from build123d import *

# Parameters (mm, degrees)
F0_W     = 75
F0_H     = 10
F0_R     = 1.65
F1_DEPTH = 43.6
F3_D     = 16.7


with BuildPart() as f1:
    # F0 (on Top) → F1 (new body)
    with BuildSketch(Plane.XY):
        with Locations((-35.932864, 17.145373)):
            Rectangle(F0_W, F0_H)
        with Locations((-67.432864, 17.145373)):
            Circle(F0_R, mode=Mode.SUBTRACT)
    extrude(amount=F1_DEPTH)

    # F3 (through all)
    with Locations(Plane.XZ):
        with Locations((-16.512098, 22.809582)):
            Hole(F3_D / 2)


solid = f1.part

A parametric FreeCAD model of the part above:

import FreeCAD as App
import Part
import Sketcher

doc = App.newDocument("Part")
body = doc.addObject("PartDesign::Body", "Body")

# Sketch on XY plane
sketch1 = body.newObject("Sketcher::SketchObject", "Sketch")
sketch1.AttachmentSupport = (doc.getObject("XY_Plane"), [""])
sketch1.MapMode = "FlatFace"
sketch1.addGeometry(Part.LineSegment(App.Vector(-73.432864, 22.145373, 0), App.Vector(-73.432864, 12.145373, 0)), False)
sketch1.addGeometry(Part.LineSegment(App.Vector(-73.432864, 12.145373, 0), App.Vector(1.567136, 12.145373, 0)), False)
sketch1.addGeometry(Part.LineSegment(App.Vector(1.567136, 12.145373, 0), App.Vector(1.567136, 22.145373, 0)), False)
sketch1.addGeometry(Part.LineSegment(App.Vector(1.567136, 22.145373, 0), App.Vector(-73.432864, 22.145373, 0)), False)
sketch1.addGeometry(Part.Circle(App.Vector(-67.432864, 17.145373, 0), App.Vector(0, 0, 1), 1.65), False)
sketch1.addConstraint(Sketcher.Constraint("Coincident", 0, 2, 1, 1))
sketch1.addConstraint(Sketcher.Constraint("Coincident", 1, 2, 2, 1))
sketch1.addConstraint(Sketcher.Constraint("Coincident", 2, 2, 3, 1))
sketch1.addConstraint(Sketcher.Constraint("Coincident", 3, 2, 0, 1))
sketch1.addConstraint(Sketcher.Constraint("Vertical", 0))
sketch1.addConstraint(Sketcher.Constraint("Horizontal", 1))
sketch1.addConstraint(Sketcher.Constraint("Vertical", 2))
sketch1.addConstraint(Sketcher.Constraint("Horizontal", 3))
sketch1.addConstraint(Sketcher.Constraint("Diameter", 4, 3.3))
sketch1.addConstraint(Sketcher.Constraint("DistanceX", 1, 1, 1, 2, 75.0))
sketch1.addConstraint(Sketcher.Constraint("DistanceY", 0, 2, 0, 1, 10.0))
sketch1.addConstraint(Sketcher.Constraint("DistanceX", 0, 2, 4, 3, 6.0))
sketch1.addConstraint(Sketcher.Constraint("DistanceY", 0, 2, 4, 3, 5.0))
sketch1.addConstraint(Sketcher.Constraint("DistanceX", 4, 3, -1, 1, 67.432864))
sketch1.addConstraint(Sketcher.Constraint("DistanceY", -1, 1, 4, 3, 17.145373))
pad1 = body.newObject("PartDesign::Pad", "Pad")
pad1.Profile = sketch1
pad1.Length = 43.6

# Sketch on XZ plane
sketch2 = body.newObject("Sketcher::SketchObject", "Sketch001")
sketch2.AttachmentSupport = (doc.getObject("XZ_Plane"), [""])
sketch2.MapMode = "FlatFace"
sketch2.addGeometry(Part.Circle(App.Vector(-16.512098, 22.809582, 0), App.Vector(0, 0, 1), 8.35), False)
sketch2.addConstraint(Sketcher.Constraint("Diameter", 0, 16.7))
sketch2.addConstraint(Sketcher.Constraint("DistanceX", 0, 3, -1, 1, 16.512098))
sketch2.addConstraint(Sketcher.Constraint("DistanceY", -1, 1, 0, 3, 22.809582))
doc.recompute()
hole = body.newObject("PartDesign::Hole", "Hole")
hole.Profile = sketch2
hole.ThreadType = "None"
hole.Diameter = 16.7
hole.DepthType = "ThroughAll"

doc.recompute()
